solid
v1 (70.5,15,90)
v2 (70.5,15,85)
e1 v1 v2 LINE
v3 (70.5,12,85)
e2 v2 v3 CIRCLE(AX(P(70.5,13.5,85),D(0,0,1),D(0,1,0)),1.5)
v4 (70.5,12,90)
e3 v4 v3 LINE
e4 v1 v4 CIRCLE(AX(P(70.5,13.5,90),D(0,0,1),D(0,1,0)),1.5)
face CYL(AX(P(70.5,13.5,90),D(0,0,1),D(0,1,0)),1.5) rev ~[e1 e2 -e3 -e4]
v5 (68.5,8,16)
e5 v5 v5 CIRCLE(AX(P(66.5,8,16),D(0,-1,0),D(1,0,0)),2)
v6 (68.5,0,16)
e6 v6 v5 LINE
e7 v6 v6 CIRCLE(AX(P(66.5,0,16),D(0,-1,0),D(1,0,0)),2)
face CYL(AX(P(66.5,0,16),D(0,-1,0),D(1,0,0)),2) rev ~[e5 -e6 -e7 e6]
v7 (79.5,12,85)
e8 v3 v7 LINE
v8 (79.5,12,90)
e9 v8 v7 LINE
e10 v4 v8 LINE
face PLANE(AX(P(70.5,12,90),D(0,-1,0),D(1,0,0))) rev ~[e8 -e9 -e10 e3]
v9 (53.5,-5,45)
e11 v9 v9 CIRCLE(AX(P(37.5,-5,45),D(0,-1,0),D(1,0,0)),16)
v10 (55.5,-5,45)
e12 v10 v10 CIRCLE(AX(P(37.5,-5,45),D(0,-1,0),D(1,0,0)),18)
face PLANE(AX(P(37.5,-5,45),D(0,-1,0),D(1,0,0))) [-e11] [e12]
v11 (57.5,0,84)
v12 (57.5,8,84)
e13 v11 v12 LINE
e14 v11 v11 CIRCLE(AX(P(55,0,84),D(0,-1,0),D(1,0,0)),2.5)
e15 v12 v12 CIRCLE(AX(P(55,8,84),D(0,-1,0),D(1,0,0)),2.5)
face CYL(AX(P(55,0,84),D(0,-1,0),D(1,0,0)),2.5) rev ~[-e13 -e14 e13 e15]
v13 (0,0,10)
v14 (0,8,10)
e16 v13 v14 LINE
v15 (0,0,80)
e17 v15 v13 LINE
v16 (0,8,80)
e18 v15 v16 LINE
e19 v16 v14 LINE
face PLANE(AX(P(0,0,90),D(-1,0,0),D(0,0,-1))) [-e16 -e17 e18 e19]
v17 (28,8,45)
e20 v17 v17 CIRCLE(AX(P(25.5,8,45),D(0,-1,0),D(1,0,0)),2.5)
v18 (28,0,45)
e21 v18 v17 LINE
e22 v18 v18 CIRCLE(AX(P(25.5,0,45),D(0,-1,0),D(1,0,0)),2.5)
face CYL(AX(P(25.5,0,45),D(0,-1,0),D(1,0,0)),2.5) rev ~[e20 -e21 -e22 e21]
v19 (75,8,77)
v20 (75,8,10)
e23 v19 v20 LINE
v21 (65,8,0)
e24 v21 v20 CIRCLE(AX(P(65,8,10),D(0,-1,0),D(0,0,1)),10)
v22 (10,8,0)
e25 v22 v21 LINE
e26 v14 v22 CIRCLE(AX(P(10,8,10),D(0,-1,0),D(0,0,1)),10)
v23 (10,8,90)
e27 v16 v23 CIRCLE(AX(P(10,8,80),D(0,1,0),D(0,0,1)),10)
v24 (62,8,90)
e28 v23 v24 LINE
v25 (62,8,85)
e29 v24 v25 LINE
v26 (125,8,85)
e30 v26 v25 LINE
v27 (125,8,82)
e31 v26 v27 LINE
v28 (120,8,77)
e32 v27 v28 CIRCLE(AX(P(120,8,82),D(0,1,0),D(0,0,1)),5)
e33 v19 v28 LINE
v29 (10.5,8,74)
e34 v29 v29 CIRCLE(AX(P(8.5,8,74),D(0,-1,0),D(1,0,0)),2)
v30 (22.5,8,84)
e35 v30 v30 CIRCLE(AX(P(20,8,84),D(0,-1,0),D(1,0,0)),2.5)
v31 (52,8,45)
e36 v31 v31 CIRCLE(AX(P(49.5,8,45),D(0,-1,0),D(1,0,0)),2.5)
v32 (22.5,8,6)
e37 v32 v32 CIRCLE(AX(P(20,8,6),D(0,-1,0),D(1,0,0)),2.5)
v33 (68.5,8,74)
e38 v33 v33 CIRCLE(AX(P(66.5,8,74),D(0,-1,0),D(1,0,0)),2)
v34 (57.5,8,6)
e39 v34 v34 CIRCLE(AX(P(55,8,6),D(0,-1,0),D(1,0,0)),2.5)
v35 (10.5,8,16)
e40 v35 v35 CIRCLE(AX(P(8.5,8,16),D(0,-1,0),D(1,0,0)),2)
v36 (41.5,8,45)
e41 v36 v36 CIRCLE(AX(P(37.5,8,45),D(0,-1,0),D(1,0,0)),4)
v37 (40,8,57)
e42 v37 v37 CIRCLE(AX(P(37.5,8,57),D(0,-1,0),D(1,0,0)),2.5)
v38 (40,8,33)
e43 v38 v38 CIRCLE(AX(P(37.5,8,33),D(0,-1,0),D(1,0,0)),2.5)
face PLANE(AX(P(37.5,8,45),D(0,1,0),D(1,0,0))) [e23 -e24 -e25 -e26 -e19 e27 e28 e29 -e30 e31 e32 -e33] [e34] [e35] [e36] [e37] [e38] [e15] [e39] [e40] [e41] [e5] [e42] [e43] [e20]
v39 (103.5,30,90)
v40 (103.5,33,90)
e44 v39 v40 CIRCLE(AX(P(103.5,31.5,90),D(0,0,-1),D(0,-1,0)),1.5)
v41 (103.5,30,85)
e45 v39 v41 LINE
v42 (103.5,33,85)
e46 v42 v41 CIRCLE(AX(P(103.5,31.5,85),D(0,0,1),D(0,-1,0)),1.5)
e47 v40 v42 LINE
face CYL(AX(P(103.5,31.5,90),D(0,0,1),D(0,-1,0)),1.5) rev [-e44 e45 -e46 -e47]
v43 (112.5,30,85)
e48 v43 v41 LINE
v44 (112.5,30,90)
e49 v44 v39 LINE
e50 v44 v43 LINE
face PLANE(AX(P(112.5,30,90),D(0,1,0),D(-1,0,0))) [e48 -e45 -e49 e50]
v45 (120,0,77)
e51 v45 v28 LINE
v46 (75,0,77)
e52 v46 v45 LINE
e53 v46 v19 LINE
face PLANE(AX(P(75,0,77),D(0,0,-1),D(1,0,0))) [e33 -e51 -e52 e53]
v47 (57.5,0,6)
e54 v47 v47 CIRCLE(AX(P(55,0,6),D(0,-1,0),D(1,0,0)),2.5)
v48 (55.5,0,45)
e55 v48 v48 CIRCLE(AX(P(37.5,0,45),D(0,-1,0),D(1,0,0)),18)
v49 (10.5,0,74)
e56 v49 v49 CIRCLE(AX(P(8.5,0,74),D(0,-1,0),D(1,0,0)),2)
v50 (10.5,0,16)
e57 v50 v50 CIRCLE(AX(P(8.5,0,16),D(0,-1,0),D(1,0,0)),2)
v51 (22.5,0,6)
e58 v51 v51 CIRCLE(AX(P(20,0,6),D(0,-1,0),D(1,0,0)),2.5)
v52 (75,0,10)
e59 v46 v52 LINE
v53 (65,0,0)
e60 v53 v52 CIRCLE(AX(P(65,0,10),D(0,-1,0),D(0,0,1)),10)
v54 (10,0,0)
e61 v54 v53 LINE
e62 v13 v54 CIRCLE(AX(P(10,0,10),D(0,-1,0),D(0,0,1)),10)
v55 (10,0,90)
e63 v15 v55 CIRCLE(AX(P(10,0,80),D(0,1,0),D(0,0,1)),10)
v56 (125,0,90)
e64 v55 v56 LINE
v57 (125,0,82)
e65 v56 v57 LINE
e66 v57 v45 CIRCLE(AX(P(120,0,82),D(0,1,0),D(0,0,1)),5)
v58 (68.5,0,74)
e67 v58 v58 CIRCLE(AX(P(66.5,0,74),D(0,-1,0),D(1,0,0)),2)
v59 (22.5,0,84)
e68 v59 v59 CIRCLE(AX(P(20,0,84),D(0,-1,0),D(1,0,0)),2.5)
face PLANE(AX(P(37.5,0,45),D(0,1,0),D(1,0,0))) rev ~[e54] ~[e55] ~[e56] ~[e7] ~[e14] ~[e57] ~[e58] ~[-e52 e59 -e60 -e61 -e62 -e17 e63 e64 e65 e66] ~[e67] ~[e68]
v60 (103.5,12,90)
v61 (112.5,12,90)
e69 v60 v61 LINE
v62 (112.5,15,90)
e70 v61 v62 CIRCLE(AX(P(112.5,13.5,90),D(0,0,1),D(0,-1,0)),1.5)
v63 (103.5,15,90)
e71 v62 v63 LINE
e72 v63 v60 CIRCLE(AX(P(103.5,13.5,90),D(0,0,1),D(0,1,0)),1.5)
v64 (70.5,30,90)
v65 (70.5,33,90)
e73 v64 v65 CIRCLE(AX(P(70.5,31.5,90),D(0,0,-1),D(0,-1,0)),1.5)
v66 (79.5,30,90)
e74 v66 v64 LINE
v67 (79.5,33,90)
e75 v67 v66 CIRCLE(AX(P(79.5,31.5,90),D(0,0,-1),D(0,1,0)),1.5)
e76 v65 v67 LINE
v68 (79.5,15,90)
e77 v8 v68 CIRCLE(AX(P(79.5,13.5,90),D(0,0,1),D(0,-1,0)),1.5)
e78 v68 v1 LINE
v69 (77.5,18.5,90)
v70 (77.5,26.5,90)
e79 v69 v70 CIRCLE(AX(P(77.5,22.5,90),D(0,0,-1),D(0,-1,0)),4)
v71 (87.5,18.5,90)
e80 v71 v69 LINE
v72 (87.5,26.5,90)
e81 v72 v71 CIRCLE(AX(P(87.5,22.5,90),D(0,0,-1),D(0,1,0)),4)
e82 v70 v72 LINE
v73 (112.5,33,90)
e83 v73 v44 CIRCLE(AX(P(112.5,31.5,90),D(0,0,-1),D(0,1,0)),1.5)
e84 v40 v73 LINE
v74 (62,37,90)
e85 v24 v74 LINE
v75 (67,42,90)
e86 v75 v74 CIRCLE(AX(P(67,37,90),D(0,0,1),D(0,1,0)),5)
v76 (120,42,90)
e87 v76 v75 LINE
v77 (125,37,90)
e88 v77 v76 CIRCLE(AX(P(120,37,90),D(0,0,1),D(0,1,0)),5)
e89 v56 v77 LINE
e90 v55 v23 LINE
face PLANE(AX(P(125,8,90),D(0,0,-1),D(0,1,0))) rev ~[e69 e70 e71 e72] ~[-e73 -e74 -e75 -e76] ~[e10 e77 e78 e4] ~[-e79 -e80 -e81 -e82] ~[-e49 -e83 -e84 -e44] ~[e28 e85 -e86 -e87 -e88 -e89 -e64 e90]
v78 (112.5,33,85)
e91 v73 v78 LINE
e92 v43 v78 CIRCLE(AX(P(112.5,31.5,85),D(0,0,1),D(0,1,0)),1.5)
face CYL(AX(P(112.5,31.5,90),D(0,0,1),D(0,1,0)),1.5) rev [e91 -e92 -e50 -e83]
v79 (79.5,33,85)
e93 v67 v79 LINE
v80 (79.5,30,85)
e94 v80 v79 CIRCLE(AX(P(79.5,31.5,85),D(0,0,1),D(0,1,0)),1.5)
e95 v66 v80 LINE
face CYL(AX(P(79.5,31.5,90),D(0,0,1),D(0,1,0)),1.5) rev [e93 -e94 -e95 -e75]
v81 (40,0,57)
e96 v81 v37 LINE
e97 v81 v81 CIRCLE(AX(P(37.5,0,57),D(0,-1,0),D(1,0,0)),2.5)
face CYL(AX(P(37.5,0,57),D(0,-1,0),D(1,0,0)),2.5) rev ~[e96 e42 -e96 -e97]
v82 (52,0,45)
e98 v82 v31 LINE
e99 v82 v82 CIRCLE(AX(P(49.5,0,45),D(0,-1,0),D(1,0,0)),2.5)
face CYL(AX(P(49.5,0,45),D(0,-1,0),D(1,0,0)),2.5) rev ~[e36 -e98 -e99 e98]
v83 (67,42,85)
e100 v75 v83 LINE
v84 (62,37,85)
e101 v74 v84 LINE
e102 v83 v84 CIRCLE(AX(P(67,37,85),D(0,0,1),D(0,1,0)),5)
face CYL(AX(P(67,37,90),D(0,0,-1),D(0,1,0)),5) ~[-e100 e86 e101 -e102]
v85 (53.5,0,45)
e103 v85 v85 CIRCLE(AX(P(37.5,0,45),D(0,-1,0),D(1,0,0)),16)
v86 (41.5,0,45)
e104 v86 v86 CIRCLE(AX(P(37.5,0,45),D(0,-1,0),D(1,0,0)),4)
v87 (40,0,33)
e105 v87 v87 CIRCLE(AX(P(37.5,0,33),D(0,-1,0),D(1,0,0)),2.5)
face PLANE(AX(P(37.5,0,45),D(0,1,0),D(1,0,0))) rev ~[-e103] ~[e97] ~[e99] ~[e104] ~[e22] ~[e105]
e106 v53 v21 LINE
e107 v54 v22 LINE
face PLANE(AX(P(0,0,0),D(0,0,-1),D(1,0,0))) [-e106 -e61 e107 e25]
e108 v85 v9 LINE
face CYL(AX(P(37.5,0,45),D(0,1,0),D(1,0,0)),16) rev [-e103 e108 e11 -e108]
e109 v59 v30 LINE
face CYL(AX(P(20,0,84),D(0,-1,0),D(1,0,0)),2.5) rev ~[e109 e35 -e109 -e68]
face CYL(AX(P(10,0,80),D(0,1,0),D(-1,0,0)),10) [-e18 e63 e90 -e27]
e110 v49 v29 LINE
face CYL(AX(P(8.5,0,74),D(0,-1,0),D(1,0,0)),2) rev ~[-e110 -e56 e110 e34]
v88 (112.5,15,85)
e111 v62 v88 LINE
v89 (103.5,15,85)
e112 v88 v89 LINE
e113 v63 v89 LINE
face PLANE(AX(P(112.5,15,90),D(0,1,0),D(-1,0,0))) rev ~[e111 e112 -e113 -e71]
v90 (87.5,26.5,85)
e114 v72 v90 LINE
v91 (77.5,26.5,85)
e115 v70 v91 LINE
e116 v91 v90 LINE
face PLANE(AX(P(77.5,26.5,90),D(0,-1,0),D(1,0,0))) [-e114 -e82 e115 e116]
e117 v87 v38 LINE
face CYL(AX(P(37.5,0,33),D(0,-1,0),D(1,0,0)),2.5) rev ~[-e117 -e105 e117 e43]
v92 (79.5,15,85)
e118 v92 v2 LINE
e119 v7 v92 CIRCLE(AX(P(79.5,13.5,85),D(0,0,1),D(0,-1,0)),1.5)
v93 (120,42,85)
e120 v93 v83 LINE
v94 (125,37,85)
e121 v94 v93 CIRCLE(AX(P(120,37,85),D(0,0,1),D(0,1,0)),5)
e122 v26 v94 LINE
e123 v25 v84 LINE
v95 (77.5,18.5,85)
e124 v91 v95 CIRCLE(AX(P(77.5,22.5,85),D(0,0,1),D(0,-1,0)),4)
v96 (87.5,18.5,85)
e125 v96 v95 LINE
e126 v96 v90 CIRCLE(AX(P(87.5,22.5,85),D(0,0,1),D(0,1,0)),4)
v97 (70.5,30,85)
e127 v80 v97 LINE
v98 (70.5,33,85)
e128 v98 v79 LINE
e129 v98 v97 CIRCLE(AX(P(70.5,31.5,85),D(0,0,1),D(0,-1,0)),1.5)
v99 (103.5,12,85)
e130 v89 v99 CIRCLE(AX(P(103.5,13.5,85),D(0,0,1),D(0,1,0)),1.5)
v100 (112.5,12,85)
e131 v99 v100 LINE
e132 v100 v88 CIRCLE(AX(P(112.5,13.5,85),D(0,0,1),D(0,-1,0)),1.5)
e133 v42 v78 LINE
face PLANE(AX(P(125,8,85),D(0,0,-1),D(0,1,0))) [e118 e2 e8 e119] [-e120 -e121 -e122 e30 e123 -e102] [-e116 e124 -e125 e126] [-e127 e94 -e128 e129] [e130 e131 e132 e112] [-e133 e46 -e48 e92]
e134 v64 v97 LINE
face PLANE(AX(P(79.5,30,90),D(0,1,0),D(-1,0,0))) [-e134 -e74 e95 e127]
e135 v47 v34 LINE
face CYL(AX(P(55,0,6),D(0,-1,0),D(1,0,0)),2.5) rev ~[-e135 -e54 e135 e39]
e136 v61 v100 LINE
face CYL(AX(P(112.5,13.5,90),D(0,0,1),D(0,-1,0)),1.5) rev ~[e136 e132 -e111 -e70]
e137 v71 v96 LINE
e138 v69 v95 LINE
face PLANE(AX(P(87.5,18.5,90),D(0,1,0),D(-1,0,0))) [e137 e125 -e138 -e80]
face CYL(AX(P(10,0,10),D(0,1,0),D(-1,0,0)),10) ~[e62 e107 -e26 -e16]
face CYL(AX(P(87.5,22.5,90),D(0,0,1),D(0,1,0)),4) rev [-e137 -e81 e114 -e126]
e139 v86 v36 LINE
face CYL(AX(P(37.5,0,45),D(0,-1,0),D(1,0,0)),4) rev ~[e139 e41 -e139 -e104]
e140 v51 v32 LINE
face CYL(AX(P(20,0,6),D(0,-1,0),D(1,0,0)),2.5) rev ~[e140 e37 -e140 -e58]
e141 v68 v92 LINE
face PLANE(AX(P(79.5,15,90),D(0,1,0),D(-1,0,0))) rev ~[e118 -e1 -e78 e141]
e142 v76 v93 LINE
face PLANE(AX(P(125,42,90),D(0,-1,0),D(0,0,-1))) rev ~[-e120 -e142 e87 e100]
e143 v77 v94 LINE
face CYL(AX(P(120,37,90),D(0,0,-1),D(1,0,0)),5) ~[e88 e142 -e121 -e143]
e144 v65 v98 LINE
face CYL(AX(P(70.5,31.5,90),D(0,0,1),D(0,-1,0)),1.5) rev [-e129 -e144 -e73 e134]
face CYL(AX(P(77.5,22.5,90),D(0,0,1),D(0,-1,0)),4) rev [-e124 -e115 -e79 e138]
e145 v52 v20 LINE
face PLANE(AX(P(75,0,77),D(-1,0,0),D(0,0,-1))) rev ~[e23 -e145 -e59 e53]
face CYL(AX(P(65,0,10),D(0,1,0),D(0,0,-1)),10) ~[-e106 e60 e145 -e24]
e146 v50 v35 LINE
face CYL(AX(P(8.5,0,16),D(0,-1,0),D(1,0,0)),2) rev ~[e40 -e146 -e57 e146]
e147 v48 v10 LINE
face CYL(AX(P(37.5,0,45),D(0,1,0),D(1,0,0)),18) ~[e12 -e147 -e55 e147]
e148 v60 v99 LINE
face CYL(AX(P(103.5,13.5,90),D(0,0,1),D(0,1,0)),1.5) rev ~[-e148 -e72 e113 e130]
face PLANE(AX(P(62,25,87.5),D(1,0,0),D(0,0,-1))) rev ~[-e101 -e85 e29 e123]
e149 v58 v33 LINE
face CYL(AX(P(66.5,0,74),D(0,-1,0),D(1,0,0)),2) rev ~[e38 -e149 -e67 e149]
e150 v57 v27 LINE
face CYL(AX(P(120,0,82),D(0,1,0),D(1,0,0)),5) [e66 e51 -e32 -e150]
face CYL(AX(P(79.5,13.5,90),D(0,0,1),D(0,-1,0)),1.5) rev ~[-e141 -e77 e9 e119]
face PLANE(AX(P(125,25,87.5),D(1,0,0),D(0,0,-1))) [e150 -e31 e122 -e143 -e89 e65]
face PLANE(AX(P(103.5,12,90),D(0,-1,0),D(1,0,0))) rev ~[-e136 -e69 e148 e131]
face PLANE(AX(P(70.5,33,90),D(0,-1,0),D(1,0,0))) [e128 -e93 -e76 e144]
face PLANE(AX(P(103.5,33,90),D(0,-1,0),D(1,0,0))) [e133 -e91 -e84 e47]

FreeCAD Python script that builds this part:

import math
import FreeCAD as App
import Part
import Sketcher
Q = App.Units.Quantity


def edges_at(feature, points):
    """Names of the edges that pass closest to the given points."""
    edges = feature.Shape.Edges
    near = lambda p: min(range(len(edges)), key=lambda i: edges[i].distToShape(Part.Vertex(*p))[0])
    return sorted({f"Edge{near(p) + 1}" for p in points})

doc = App.newDocument("Part")
params = doc.addObject("Spreadsheet::Sheet", "Params")
for row, (alias, value) in enumerate([
    ("sketch1_width", "125 mm"),
    ("sketch1_width2", "50 mm"),
    ("sketch1_height", "90 mm"),
    ("sketch1_height2", "13 mm"),
    ("pad1_length", "8 mm"),
    ("sketch2_diameter", "36 mm"),
    ("sketch2_diameter2", "32 mm"),
    ("pad2_length", "5 mm"),
    ("sketch3_diameter", "4 mm"),
    ("fillet_radius", "10 mm"),
    ("fillet2_radius", "10 mm"),
    ("fillet3_radius", "10 mm"),
    ("sketch4_diameter", "5 mm"),
    ("sketch5_diameter", "5 mm"),
    ("sketch6_diameter", "5 mm"),
    ("sketch7_diameter", "5 mm"),
    ("sketch8_width", "34 mm"),
    ("sketch8_height", "5 mm"),
    ("pad3_length", "63 mm"),
    ("fillet4_radius", "5 mm"),
    ("fillet5_radius", "5 mm"),
    ("fillet6_radius", "5 mm"),
    ("sketch9_radius", "4 mm"),
    ("sketch9_width", "10 mm"),
    ("sketch10_radius", "1.5 mm"),
    ("sketch10_width", "9 mm"),
    ("sketch11_radius", "1.5 mm"),
    ("sketch11_width", "9 mm"),
    ("sketch12_radius", "1.5 mm"),
    ("sketch12_width", "9 mm"),
    ("sketch13_radius", "1.5 mm"),
    ("sketch13_width", "9 mm"),
    ("sketch14_diameter", "5 mm"),
    ("sketch15_diameter", "8 mm"),
    ("sketch16_diameter", "5 mm"),
    ("sketch17_diameter", "5 mm"),
    ("sketch18_diameter", "5 mm"),
], start=1):
    params.set(f"A{row}", alias)
    params.set(f"B{row}", "=" + value)
    params.setAlias(f"B{row}", alias)

body = doc.addObject("PartDesign::Body", "Body")

sketch1 = body.newObject("Sketcher::SketchObject", "Sketch")
sketch1.AttachmentSupport = (doc.getObject("XZ_Plane"), [""])
sketch1.MapMode = "FlatFace"
sketch1.addGeometry([
    Part.LineSegment(App.Vector(0, 0, 0), App.Vector(0, 90, 0)),
    Part.LineSegment(App.Vector(0, 90, 0), App.Vector(125, 90, 0)),
    Part.LineSegment(App.Vector(125, 90, 0), App.Vector(125, 77, 0)),
    Part.LineSegment(App.Vector(125, 77, 0), App.Vector(75, 77, 0)),
    Part.LineSegment(App.Vector(75, 77, 0), App.Vector(75, 0, 0)),
    Part.LineSegment(App.Vector(75, 0, 0), App.Vector(0, 0, 0)),
], False)
sketch1.addConstraint([
    Sketcher.Constraint("Coincident", 0, 2, 1, 1),
    Sketcher.Constraint("Coincident", 1, 2, 2, 1),
    Sketcher.Constraint("Coincident", 2, 2, 3, 1),
    Sketcher.Constraint("Coincident", 3, 2, 4, 1),
    Sketcher.Constraint("Coincident", 4, 2, 5, 1),
    Sketcher.Constraint("Coincident", 5, 2, 0, 1),
    Sketcher.Constraint("Vertical", 0),
    Sketcher.Constraint("Horizontal", 1),
    Sketcher.Constraint("Vertical", 2),
    Sketcher.Constraint("Horizontal", 3),
    Sketcher.Constraint("Vertical", 4),
    Sketcher.Constraint("Horizontal", 5),
    Sketcher.Constraint("Coincident", 5, 2, -1, 1),
    Sketcher.Constraint("DistanceX", 1, 1, 1, 2, Q("125 mm")),
    Sketcher.Constraint("DistanceX", 3, 2, 3, 1, Q("50 mm")),
    Sketcher.Constraint("DistanceY", 0, 1, 0, 2, Q("90 mm")),
    Sketcher.Constraint("DistanceY", 2, 2, 2, 1, Q("13 mm")),
])
sketch1.setExpression("Constraints[13]", "Params.sketch1_width")
sketch1.setExpression("Constraints[14]", "Params.sketch1_width2")
sketch1.setExpression("Constraints[15]", "Params.sketch1_height")
sketch1.setExpression("Constraints[16]", "Params.sketch1_height2")
pad1 = body.newObject("PartDesign::Pad", "Pad")
pad1.Profile = sketch1
pad1.setExpression("Length", "Params.pad1_length")
pad1.Reversed = True

sketch2 = body.newObject("Sketcher::SketchObject", "Sketch001")
sketch2.AttachmentSupport = (doc.getObject("XZ_Plane"), [""])
sketch2.MapMode = "FlatFace"
sketch2.addGeometry([
    Part.Circle(App.Vector(37.5, 45, 0), App.Vector(0, 0, 1), 18),
    Part.Circle(App.Vector(37.5, 45, 0), App.Vector(0, 0, 1), 16),
], False)
sketch2.addConstraint([
    Sketcher.Constraint("Coincident", 1, 3, 0, 3),
    Sketcher.Constraint("Diameter", 0, Q("36 mm")),
    Sketcher.Constraint("Diameter", 1, Q("32 mm")),
    Sketcher.Constraint("DistanceY", -1, 1, 0, 3, Q("45 mm")),
    Sketcher.Constraint("DistanceX", -1, 1, 0, 3, Q("37.5 mm")),
])
sketch2.setExpression("Constraints[1]", "Params.sketch2_diameter")
sketch2.setExpression("Constraints[2]", "Params.sketch2_diameter2")
pad2 = body.newObject("PartDesign::Pad", "Pad001")
pad2.Profile = sketch2
pad2.setExpression("Length", "Params.pad2_length")

sketch3 = body.newObject("Sketcher::SketchObject", "Sketch002")
sketch3.AttachmentSupport = (doc.getObject("XZ_Plane"), [""])
sketch3.MapMode = "FlatFace"
sketch3.addGeometry([
    Part.Circle(App.Vector(8.5, 74, 0), App.Vector(0, 0, 1), 2),
    Part.Circle(App.Vector(66.5, 74, 0), App.Vector(0, 0, 1), 2),
    Part.Circle(App.Vector(8.5, 16, 0), App.Vector(0, 0, 1), 2),
    Part.Circle(App.Vector(66.5, 16, 0), App.Vector(0, 0, 1), 2),
], False)
sketch3.addConstraint([
    Sketcher.Constraint("Equal", 0, 1),
    Sketcher.Constraint("Equal", 1, 2),
    Sketcher.Constraint("Equal", 2, 3),
    Sketcher.Constraint("Horizontal", 0, 3, 1, 3),
    Sketcher.Constraint("Horizontal", 2, 3, 3, 3),
    Sketcher.Constraint("Vertical", 0, 3, 2, 3),
    Sketcher.Constraint("Vertical", 1, 3, 3, 3),
    Sketcher.Constraint("Diameter", 0, Q("4 mm")),
    Sketcher.Constraint("DistanceY", -1, 1, 0, 3, Q("74 mm")),
    Sketcher.Constraint("DistanceY", -1, 1, 2, 3, Q("16 mm")),
    Sketcher.Constraint("DistanceX", 0, 3, 1, 3, Q("58 mm")),
    Sketcher.Constraint("DistanceX", -1, 1, 0, 3, Q("8.5 mm")),
])
sketch3.setExpression("Constraints[7]", "Params.sketch3_diameter")
pocket1 = body.newObject("PartDesign::Pocket", "Pocket")
pocket1.Profile = sketch3
pocket1.Type = "ThroughAll"
pocket1.Midplane = True
doc.recompute()

fillet = body.newObject("PartDesign::Fillet", "Fillet")
fillet.Base = (pocket1, edges_at(pocket1, [(0, 4, 0)]))
fillet.setExpression("Radius", "Params.fillet_radius")
doc.recompute()

fillet2 = body.newObject("PartDesign::Fillet", "Fillet001")
fillet2.Base = (fillet, edges_at(fillet, [(0, 4, 90)]))
fillet2.setExpression("Radius", "Params.fillet2_radius")
doc.recompute()

fillet3 = body.newObject("PartDesign::Fillet", "Fillet002")
fillet3.Base = (fillet2, edges_at(fillet2, [(75, 4, 0)]))
fillet3.setExpression("Radius", "Params.fillet3_radius")

sketch4 = body.newObject("Sketcher::SketchObject", "Sketch003")
sketch4.AttachmentSupport = (doc.getObject("XZ_Plane"), [""])
sketch4.MapMode = "FlatFace"
sketch4.addGeometry(Part.Circle(App.Vector(55, 6, 0), App.Vector(0, 0, 1), 2.5), False)
sketch4.addConstraint([
    Sketcher.Constraint("Diameter", 0, Q("5 mm")),
    Sketcher.Constraint("DistanceX", -1, 1, 0, 3, Q("55 mm")),
    Sketcher.Constraint("DistanceY", -1, 1, 0, 3, Q("6 mm")),
])
sketch4.setExpression("Constraints[0]", "Params.sketch4_diameter")
pocket2 = body.newObject("PartDesign::Pocket", "Pocket001")
pocket2.Profile = sketch4
pocket2.Type = "UpToFirst"

sketch5 = body.newObject("Sketcher::SketchObject", "Sketch004")
sketch5.AttachmentSupport = (doc.getObject("XZ_Plane"), [""])
sketch5.MapMode = "FlatFace"
sketch5.addGeometry(Part.Circle(App.Vector(20, 84, 0), App.Vector(0, 0, 1), 2.5), False)
sketch5.addConstraint([
    Sketcher.Constraint("Diameter", 0, Q("5 mm")),
    Sketcher.Constraint("DistanceX", -1, 1, 0, 3, Q("20 mm")),
    Sketcher.Constraint("DistanceY", -1, 1, 0, 3, Q("84 mm")),
])
sketch5.setExpression("Constraints[0]", "Params.sketch5_diameter")
pocket3 = body.newObject("PartDesign::Pocket", "Pocket002")
pocket3.Profile = sketch5
pocket3.Type = "UpToFirst"

sketch6 = body.newObject("Sketcher::SketchObject", "Sketch005")
sketch6.AttachmentSupport = (doc.getObject("XZ_Plane"), [""])
sketch6.MapMode = "FlatFace"
sketch6.addGeometry(Part.Circle(App.Vector(55, 84, 0), App.Vector(0, 0, 1), 2.5), False)
sketch6.addConstraint([
    Sketcher.Constraint("Diameter", 0, Q("5 mm")),
    Sketcher.Constraint("DistanceX", -1, 1, 0, 3, Q("55 mm")),
    Sketcher.Constraint("DistanceY", -1, 1, 0, 3, Q("84 mm")),
])
sketch6.setExpression("Constraints[0]", "Params.sketch6_diameter")
pocket4 = body.newObject("PartDesign::Pocket", "Pocket003")
pocket4.Profile = sketch6
pocket4.Type = "UpToFirst"

sketch7 = body.newObject("Sketcher::SketchObject", "Sketch006")
sketch7.AttachmentSupport = (doc.getObject("XZ_Plane"), [""])
sketch7.MapMode = "FlatFace"
sketch7.addGeometry(Part.Circle(App.Vector(20, 6, 0), App.Vector(0, 0, 1), 2.5), False)
sketch7.addConstraint([
    Sketcher.Constraint("Diameter", 0, Q("5 mm")),
    Sketcher.Constraint("DistanceX", -1, 1, 0, 3, Q("20 mm")),
    Sketcher.Constraint("DistanceY", -1, 1, 0, 3, Q("6 mm")),
])
sketch7.setExpression("Constraints[0]", "Params.sketch7_diameter")
pocket5 = body.newObject("PartDesign::Pocket", "Pocket004")
pocket5.Profile = sketch7
pocket5.Type = "UpToFirst"

sketch8 = body.newObject("Sketcher::SketchObject", "Sketch007")
sketch8.AttachmentSupport = (doc.getObject("YZ_Plane"), [""])
sketch8.MapMode = "FlatFace"
sketch8.AttachmentOffset = App.Placement(App.Vector(0, 0, 125), App.Rotation())
sketch8.addGeometry([
    Part.LineSegment(App.Vector(42, 90, 0), App.Vector(8, 90, 0)),
    Part.LineSegment(App.Vector(8, 90, 0), App.Vector(8, 85, 0)),
    Part.LineSegment(App.Vector(8, 85, 0), App.Vector(42, 85, 0)),
    Part.LineSegment(App.Vector(42, 85, 0), App.Vector(42, 90, 0)),
], False)
sketch8.addConstraint([
    Sketcher.Constraint("Coincident", 0, 2, 1, 1),
    Sketcher.Constraint("Coincident", 1, 2, 2, 1),
    Sketcher.Constraint("Coincident", 2, 2, 3, 1),
    Sketcher.Constraint("Coincident", 3, 2, 0, 1),
    Sketcher.Constraint("Horizontal", 0),
    Sketcher.Constraint("Vertical", 1),
    Sketcher.Constraint("Horizontal", 2),
    Sketcher.Constraint("Vertical", 3),
    Sketcher.Constraint("DistanceX", 0, 2, 0, 1, Q("34 mm")),
    Sketcher.Constraint("DistanceY", 1, 2, 1, 1, Q("5 mm")),
    Sketcher.Constraint("DistanceX", -1, 1, 0, 2, Q("8 mm")),
    Sketcher.Constraint("DistanceY", -1, 1, 0, 2, Q("90 mm")),
])
sketch8.setExpression("Constraints[8]", "Params.sketch8_width")
sketch8.setExpression("Constraints[9]", "Params.sketch8_height")
pad3 = body.newObject("PartDesign::Pad", "Pad002")
pad3.Profile = sketch8
pad3.setExpression("Length", "Params.pad3_length")
pad3.Reversed = True
doc.recompute()

fillet4 = body.newObject("PartDesign::Fillet", "Fillet003")
fillet4.Base = (pad3, edges_at(pad3, [(125, 42, 87.5)]))
fillet4.setExpression("Radius", "Params.fillet4_radius")
doc.recompute()

fillet5 = body.newObject("PartDesign::Fillet", "Fillet004")
fillet5.Base = (fillet4, edges_at(fillet4, [(125, 4, 77)]))
fillet5.setExpression("Radius", "Params.fillet5_radius")
doc.recompute()

fillet6 = body.newObject("PartDesign::Fillet", "Fillet005")
fillet6.Base = (fillet5, edges_at(fillet5, [(62, 42, 87.5)]))
fillet6.setExpression("Radius", "Params.fillet6_radius")

sketch9 = body.newObject("Sketcher::SketchObject", "Sketch008")
sketch9.AttachmentSupport = (doc.getObject("XY_Plane"), [""])
sketch9.MapMode = "FlatFace"
sketch9.AttachmentOffset = App.Placement(App.Vector(0, 0, 90), App.Rotation())
sketch9.addGeometry([
    Part.LineSegment(App.Vector(87.5, 26.5, 0), App.Vector(77.5, 26.5, 0)),
    Part.ArcOfCircle(Part.Circle(App.Vector(77.5, 22.5, 0), App.Vector(0, 0, 1), 4), math.radians(90), math.radians(270)),
    Part.LineSegment(App.Vector(77.5, 18.5, 0), App.Vector(87.5, 18.5, 0)),
    Part.ArcOfCircle(Part.Circle(App.Vector(87.5, 22.5, 0), App.Vector(0, 0, 1), 4), math.radians(-90), math.radians(90)),
], False)
sketch9.addConstraint([
    Sketcher.Constraint("Tangent", 0, 2, 1, 1),
    Sketcher.Constraint("Tangent", 1, 2, 2, 1),
    Sketcher.Constraint("Tangent", 2, 2, 3, 1),
    Sketcher.Constraint("Tangent", 3, 2, 0, 1),
    Sketcher.Constraint("Horizontal", 0),
    Sketcher.Constraint("Horizontal", 2),
    Sketcher.Constraint("Radius", 1, Q("4 mm")),
    Sketcher.Constraint("DistanceX", 0, 2, 0, 1, Q("10 mm")),
    Sketcher.Constraint("DistanceX", -1, 1, 1, 3, Q("77.5 mm")),
    Sketcher.Constraint("DistanceY", -1, 1, 1, 3, Q("22.5 mm")),
])
sketch9.setExpression("Constraints[6]", "Params.sketch9_radius")
sketch9.setExpression("Constraints[7]", "Params.sketch9_width")
pocket6 = body.newObject("PartDesign::Pocket", "Pocket005")
pocket6.Profile = sketch9
pocket6.Type = "UpToFirst"

sketch10 = body.newObject("Sketcher::SketchObject", "Sketch009")
sketch10.AttachmentSupport = (doc.getObject("XY_Plane"), [""])
sketch10.MapMode = "FlatFace"
sketch10.AttachmentOffset = App.Placement(App.Vector(0, 0, 90), App.Rotation())
sketch10.addGeometry([
    Part.LineSegment(App.Vector(79.5, 33, 0), App.Vector(70.5, 33, 0)),
    Part.ArcOfCircle(Part.Circle(App.Vector(70.5, 31.5, 0), App.Vector(0, 0, 1), 1.5), math.radians(90), math.radians(270)),
    Part.LineSegment(App.Vector(70.5, 30, 0), App.Vector(79.5, 30, 0)),
    Part.ArcOfCircle(Part.Circle(App.Vector(79.5, 31.5, 0), App.Vector(0, 0, 1), 1.5), math.radians(-90), math.radians(90)),
], False)
sketch10.addConstraint([
    Sketcher.Constraint("Tangent", 0, 2, 1, 1),
    Sketcher.Constraint("Tangent", 1, 2, 2, 1),
    Sketcher.Constraint("Tangent", 2, 2, 3, 1),
    Sketcher.Constraint("Tangent", 3, 2, 0, 1),
    Sketcher.Constraint("Horizontal", 0),
    Sketcher.Constraint("Horizontal", 2),
    Sketcher.Constraint("Radius", 1, Q("1.5 mm")),
    Sketcher.Constraint("DistanceX", 0, 2, 0, 1, Q("9 mm")),
    Sketcher.Constraint("DistanceY", -1, 1, 0, 2, Q("33 mm")),
    Sketcher.Constraint("DistanceX", -1, 1, 1, 3, Q("70.5 mm")),
])
sketch10.setExpression("Constraints[6]", "Params.sketch10_radius")
sketch10.setExpression("Constraints[7]", "Params.sketch10_width")
pocket7 = body.newObject("PartDesign::Pocket", "Pocket006")
pocket7.Profile = sketch10
pocket7.Type = "UpToFirst"

sketch11 = body.newObject("Sketcher::SketchObject", "Sketch010")
sketch11.AttachmentSupport = (doc.getObject("XY_Plane"), [""])
sketch11.MapMode = "FlatFace"
sketch11.AttachmentOffset = App.Placement(App.Vector(0, 0, 90), App.Rotation())
sketch11.addGeometry([
    Part.LineSegment(App.Vector(70.5, 12, 0), App.Vector(79.5, 12, 0)),
    Part.ArcOfCircle(Part.Circle(App.Vector(79.5, 13.5, 0), App.Vector(0, 0, 1), 1.5), math.radians(-90), math.radians(90)),
    Part.LineSegment(App.Vector(79.5, 15, 0), App.Vector(70.5, 15, 0)),
    Part.ArcOfCircle(Part.Circle(App.Vector(70.5, 13.5, 0), App.Vector(0, 0, 1), 1.5), math.radians(90), math.radians(270)),
], False)
sketch11.addConstraint([
    Sketcher.Constraint("Tangent", 0, 2, 1, 1),
    Sketcher.Constraint("Tangent", 1, 2, 2, 1),
    Sketcher.Constraint("Tangent", 2, 2, 3, 1),
    Sketcher.Constraint("Tangent", 3, 2, 0, 1),
    Sketcher.Constraint("Horizontal", 0),
    Sketcher.Constraint("Horizontal", 2),
    Sketcher.Constraint("Radius", 1, Q("1.5 mm")),
    Sketcher.Constraint("DistanceX", 0, 1, 0, 2, Q("9 mm")),
    Sketcher.Constraint("DistanceY", -1, 1, 0, 2, Q("12 mm")),
    Sketcher.Constraint("DistanceX", -1, 1, 1, 3, Q("79.5 mm")),
])
sketch11.setExpression("Constraints[6]", "Params.sketch11_radius")
sketch11.setExpression("Constraints[7]", "Params.sketch11_width")
pocket8 = body.newObject("PartDesign::Pocket", "Pocket007")
pocket8.Profile = sketch11
pocket8.Type = "UpToFirst"

sketch12 = body.newObject("Sketcher::SketchObject", "Sketch011")
sketch12.AttachmentSupport = (doc.getObject("XY_Plane"), [""])
sketch12.MapMode = "FlatFace"
sketch12.AttachmentOffset = App.Placement(App.Vector(0, 0, 90), App.Rotation())
sketch12.addGeometry([
    Part.LineSegment(App.Vector(112.5, 33, 0), App.Vector(103.5, 33, 0)),
    Part.ArcOfCircle(Part.Circle(App.Vector(103.5, 31.5, 0), App.Vector(0, 0, 1), 1.5), math.radians(90), math.radians(270)),
    Part.LineSegment(App.Vector(103.5, 30, 0), App.Vector(112.5, 30, 0)),
    Part.ArcOfCircle(Part.Circle(App.Vector(112.5, 31.5, 0), App.Vector(0, 0, 1), 1.5), math.radians(-90), math.radians(90)),
], False)
sketch12.addConstraint([
    Sketcher.Constraint("Tangent", 0, 2, 1, 1),
    Sketcher.Constraint("Tangent", 1, 2, 2, 1),
    Sketcher.Constraint("Tangent", 2, 2, 3, 1),
    Sketcher.Constraint("Tangent", 3, 2, 0, 1),
    Sketcher.Constraint("Horizontal", 0),
    Sketcher.Constraint("Horizontal", 2),
    Sketcher.Constraint("Radius", 1, Q("1.5 mm")),
    Sketcher.Constraint("DistanceX", 0, 2, 0, 1, Q("9 mm")),
    Sketcher.Constraint("DistanceY", -1, 1, 0, 2, Q("33 mm")),
    Sketcher.Constraint("DistanceX", -1, 1, 1, 3, Q("103.5 mm")),
])
sketch12.setExpression("Constraints[6]", "Params.sketch12_radius")
sketch12.setExpression("Constraints[7]", "Params.sketch12_width")
pocket9 = body.newObject("PartDesign::Pocket", "Pocket008")
pocket9.Profile = sketch12
pocket9.Type = "UpToFirst"

sketch13 = body.newObject("Sketcher::SketchObject", "Sketch012")
sketch13.AttachmentSupport = (doc.getObject("XY_Plane"), [""])
sketch13.MapMode = "FlatFace"
sketch13.AttachmentOffset = App.Placement(App.Vector(0, 0, 90), App.Rotation())
sketch13.addGeometry([
    Part.LineSegment(App.Vector(103.5, 12, 0), App.Vector(112.5, 12, 0)),
    Part.ArcOfCircle(Part.Circle(App.Vector(112.5, 13.5, 0), App.Vector(0, 0, 1), 1.5), math.radians(-90), math.radians(90)),
    Part.LineSegment(App.Vector(112.5, 15, 0), App.Vector(103.5, 15, 0)),
    Part.ArcOfCircle(Part.Circle(App.Vector(103.5, 13.5, 0), App.Vector(0, 0, 1), 1.5), math.radians(90), math.radians(270)),
], False)
sketch13.addConstraint([
    Sketcher.Constraint("Tangent", 0, 2, 1, 1),
    Sketcher.Constraint("Tangent", 1, 2, 2, 1),
    Sketcher.Constraint("Tangent", 2, 2, 3, 1),
    Sketcher.Constraint("Tangent", 3, 2, 0, 1),
    Sketcher.Constraint("Horizontal", 0),
    Sketcher.Constraint("Horizontal", 2),
    Sketcher.Constraint("Radius", 1, Q("1.5 mm")),
    Sketcher.Constraint("DistanceX", 0, 1, 0, 2, Q("9 mm")),
    Sketcher.Constraint("DistanceY", -1, 1, 0, 2, Q("12 mm")),
    Sketcher.Constraint("DistanceX", -1, 1, 1, 3, Q("112.5 mm")),
])
sketch13.setExpression("Constraints[6]", "Params.sketch13_radius")
sketch13.setExpression("Constraints[7]", "Params.sketch13_width")
pocket10 = body.newObject("PartDesign::Pocket", "Pocket009")
pocket10.Profile = sketch13
pocket10.Type = "UpToFirst"

sketch14 = body.newObject("Sketcher::SketchObject", "Sketch013")
sketch14.AttachmentSupport = (doc.getObject("XZ_Plane"), [""])
sketch14.MapMode = "FlatFace"
sketch14.addGeometry(Part.Circle(App.Vector(37.5, 57, 0), App.Vector(0, 0, 1), 2.5), False)
sketch14.addConstraint([
    Sketcher.Constraint("Diameter", 0, Q("5 mm")),
    Sketcher.Constraint("DistanceY", -1, 1, 0, 3, Q("57 mm")),
    Sketcher.Constraint("DistanceX", -1, 1, 0, 3, Q("37.5 mm")),
])
sketch14.setExpression("Constraints[0]", "Params.sketch14_diameter")
pocket11 = body.newObject("PartDesign::Pocket", "Pocket010")
pocket11.Profile = sketch14
pocket11.Type = "UpToFirst"

sketch15 = body.newObject("Sketcher::SketchObject", "Sketch014")
sketch15.AttachmentSupport = (doc.getObject("XZ_Plane"), [""])
sketch15.MapMode = "FlatFace"
sketch15.addGeometry(Part.Circle(App.Vector(37.5, 45, 0), App.Vector(0, 0, 1), 4), False)
sketch15.addConstraint([
    Sketcher.Constraint("Diameter", 0, Q("8 mm")),
    Sketcher.Constraint("DistanceY", -1, 1, 0, 3, Q("45 mm")),
    Sketcher.Constraint("DistanceX", -1, 1, 0, 3, Q("37.5 mm")),
])
sketch15.setExpression("Constraints[0]", "Params.sketch15_diameter")
pocket12 = body.newObject("PartDesign::Pocket", "Pocket011")
pocket12.Profile = sketch15
pocket12.Type = "UpToFirst"

sketch16 = body.newObject("Sketcher::SketchObject", "Sketch015")
sketch16.AttachmentSupport = (doc.getObject("XZ_Plane"), [""])
sketch16.MapMode = "FlatFace"
sketch16.addGeometry(Part.Circle(App.Vector(49.5, 45, 0), App.Vector(0, 0, 1), 2.5), False)
sketch16.addConstraint([
    Sketcher.Constraint("Diameter", 0, Q("5 mm")),
    Sketcher.Constraint("DistanceY", -1, 1, 0, 3, Q("45 mm")),
    Sketcher.Constraint("DistanceX", -1, 1, 0, 3, Q("49.5 mm")),
])
sketch16.setExpression("Constraints[0]", "Params.sketch16_diameter")
pocket13 = body.newObject("PartDesign::Pocket", "Pocket012")
pocket13.Profile = sketch16
pocket13.Type = "UpToFirst"

sketch17 = body.newObject("Sketcher::SketchObject", "Sketch016")
sketch17.AttachmentSupport = (doc.getObject("XZ_Plane"), [""])
sketch17.MapMode = "FlatFace"
sketch17.addGeometry(Part.Circle(App.Vector(37.5, 33, 0), App.Vector(0, 0, 1), 2.5), False)
sketch17.addConstraint([
    Sketcher.Constraint("Diameter", 0, Q("5 mm")),
    Sketcher.Constraint("DistanceY", -1, 1, 0, 3, Q("33 mm")),
    Sketcher.Constraint("DistanceX", -1, 1, 0, 3, Q("37.5 mm")),
])
sketch17.setExpression("Constraints[0]", "Params.sketch17_diameter")
pocket14 = body.newObject("PartDesign::Pocket", "Pocket013")
pocket14.Profile = sketch17
pocket14.Type = "UpToFirst"

sketch18 = body.newObject("Sketcher::SketchObject", "Sketch017")
sketch18.AttachmentSupport = (doc.getObject("XZ_Plane"), [""])
sketch18.MapMode = "FlatFace"
sketch18.addGeometry(Part.Circle(App.Vector(25.5, 45, 0), App.Vector(0, 0, 1), 2.5), False)
sketch18.addConstraint([
    Sketcher.Constraint("Diameter", 0, Q("5 mm")),
    Sketcher.Constraint("DistanceY", -1, 1, 0, 3, Q("45 mm")),
    Sketcher.Constraint("DistanceX", -1, 1, 0, 3, Q("25.5 mm")),
])
sketch18.setExpression("Constraints[0]", "Params.sketch18_diameter")
pocket15 = body.newObject("PartDesign::Pocket", "Pocket014")
pocket15.Profile = sketch18
pocket15.Type = "UpToFirst"

doc.recompute()
